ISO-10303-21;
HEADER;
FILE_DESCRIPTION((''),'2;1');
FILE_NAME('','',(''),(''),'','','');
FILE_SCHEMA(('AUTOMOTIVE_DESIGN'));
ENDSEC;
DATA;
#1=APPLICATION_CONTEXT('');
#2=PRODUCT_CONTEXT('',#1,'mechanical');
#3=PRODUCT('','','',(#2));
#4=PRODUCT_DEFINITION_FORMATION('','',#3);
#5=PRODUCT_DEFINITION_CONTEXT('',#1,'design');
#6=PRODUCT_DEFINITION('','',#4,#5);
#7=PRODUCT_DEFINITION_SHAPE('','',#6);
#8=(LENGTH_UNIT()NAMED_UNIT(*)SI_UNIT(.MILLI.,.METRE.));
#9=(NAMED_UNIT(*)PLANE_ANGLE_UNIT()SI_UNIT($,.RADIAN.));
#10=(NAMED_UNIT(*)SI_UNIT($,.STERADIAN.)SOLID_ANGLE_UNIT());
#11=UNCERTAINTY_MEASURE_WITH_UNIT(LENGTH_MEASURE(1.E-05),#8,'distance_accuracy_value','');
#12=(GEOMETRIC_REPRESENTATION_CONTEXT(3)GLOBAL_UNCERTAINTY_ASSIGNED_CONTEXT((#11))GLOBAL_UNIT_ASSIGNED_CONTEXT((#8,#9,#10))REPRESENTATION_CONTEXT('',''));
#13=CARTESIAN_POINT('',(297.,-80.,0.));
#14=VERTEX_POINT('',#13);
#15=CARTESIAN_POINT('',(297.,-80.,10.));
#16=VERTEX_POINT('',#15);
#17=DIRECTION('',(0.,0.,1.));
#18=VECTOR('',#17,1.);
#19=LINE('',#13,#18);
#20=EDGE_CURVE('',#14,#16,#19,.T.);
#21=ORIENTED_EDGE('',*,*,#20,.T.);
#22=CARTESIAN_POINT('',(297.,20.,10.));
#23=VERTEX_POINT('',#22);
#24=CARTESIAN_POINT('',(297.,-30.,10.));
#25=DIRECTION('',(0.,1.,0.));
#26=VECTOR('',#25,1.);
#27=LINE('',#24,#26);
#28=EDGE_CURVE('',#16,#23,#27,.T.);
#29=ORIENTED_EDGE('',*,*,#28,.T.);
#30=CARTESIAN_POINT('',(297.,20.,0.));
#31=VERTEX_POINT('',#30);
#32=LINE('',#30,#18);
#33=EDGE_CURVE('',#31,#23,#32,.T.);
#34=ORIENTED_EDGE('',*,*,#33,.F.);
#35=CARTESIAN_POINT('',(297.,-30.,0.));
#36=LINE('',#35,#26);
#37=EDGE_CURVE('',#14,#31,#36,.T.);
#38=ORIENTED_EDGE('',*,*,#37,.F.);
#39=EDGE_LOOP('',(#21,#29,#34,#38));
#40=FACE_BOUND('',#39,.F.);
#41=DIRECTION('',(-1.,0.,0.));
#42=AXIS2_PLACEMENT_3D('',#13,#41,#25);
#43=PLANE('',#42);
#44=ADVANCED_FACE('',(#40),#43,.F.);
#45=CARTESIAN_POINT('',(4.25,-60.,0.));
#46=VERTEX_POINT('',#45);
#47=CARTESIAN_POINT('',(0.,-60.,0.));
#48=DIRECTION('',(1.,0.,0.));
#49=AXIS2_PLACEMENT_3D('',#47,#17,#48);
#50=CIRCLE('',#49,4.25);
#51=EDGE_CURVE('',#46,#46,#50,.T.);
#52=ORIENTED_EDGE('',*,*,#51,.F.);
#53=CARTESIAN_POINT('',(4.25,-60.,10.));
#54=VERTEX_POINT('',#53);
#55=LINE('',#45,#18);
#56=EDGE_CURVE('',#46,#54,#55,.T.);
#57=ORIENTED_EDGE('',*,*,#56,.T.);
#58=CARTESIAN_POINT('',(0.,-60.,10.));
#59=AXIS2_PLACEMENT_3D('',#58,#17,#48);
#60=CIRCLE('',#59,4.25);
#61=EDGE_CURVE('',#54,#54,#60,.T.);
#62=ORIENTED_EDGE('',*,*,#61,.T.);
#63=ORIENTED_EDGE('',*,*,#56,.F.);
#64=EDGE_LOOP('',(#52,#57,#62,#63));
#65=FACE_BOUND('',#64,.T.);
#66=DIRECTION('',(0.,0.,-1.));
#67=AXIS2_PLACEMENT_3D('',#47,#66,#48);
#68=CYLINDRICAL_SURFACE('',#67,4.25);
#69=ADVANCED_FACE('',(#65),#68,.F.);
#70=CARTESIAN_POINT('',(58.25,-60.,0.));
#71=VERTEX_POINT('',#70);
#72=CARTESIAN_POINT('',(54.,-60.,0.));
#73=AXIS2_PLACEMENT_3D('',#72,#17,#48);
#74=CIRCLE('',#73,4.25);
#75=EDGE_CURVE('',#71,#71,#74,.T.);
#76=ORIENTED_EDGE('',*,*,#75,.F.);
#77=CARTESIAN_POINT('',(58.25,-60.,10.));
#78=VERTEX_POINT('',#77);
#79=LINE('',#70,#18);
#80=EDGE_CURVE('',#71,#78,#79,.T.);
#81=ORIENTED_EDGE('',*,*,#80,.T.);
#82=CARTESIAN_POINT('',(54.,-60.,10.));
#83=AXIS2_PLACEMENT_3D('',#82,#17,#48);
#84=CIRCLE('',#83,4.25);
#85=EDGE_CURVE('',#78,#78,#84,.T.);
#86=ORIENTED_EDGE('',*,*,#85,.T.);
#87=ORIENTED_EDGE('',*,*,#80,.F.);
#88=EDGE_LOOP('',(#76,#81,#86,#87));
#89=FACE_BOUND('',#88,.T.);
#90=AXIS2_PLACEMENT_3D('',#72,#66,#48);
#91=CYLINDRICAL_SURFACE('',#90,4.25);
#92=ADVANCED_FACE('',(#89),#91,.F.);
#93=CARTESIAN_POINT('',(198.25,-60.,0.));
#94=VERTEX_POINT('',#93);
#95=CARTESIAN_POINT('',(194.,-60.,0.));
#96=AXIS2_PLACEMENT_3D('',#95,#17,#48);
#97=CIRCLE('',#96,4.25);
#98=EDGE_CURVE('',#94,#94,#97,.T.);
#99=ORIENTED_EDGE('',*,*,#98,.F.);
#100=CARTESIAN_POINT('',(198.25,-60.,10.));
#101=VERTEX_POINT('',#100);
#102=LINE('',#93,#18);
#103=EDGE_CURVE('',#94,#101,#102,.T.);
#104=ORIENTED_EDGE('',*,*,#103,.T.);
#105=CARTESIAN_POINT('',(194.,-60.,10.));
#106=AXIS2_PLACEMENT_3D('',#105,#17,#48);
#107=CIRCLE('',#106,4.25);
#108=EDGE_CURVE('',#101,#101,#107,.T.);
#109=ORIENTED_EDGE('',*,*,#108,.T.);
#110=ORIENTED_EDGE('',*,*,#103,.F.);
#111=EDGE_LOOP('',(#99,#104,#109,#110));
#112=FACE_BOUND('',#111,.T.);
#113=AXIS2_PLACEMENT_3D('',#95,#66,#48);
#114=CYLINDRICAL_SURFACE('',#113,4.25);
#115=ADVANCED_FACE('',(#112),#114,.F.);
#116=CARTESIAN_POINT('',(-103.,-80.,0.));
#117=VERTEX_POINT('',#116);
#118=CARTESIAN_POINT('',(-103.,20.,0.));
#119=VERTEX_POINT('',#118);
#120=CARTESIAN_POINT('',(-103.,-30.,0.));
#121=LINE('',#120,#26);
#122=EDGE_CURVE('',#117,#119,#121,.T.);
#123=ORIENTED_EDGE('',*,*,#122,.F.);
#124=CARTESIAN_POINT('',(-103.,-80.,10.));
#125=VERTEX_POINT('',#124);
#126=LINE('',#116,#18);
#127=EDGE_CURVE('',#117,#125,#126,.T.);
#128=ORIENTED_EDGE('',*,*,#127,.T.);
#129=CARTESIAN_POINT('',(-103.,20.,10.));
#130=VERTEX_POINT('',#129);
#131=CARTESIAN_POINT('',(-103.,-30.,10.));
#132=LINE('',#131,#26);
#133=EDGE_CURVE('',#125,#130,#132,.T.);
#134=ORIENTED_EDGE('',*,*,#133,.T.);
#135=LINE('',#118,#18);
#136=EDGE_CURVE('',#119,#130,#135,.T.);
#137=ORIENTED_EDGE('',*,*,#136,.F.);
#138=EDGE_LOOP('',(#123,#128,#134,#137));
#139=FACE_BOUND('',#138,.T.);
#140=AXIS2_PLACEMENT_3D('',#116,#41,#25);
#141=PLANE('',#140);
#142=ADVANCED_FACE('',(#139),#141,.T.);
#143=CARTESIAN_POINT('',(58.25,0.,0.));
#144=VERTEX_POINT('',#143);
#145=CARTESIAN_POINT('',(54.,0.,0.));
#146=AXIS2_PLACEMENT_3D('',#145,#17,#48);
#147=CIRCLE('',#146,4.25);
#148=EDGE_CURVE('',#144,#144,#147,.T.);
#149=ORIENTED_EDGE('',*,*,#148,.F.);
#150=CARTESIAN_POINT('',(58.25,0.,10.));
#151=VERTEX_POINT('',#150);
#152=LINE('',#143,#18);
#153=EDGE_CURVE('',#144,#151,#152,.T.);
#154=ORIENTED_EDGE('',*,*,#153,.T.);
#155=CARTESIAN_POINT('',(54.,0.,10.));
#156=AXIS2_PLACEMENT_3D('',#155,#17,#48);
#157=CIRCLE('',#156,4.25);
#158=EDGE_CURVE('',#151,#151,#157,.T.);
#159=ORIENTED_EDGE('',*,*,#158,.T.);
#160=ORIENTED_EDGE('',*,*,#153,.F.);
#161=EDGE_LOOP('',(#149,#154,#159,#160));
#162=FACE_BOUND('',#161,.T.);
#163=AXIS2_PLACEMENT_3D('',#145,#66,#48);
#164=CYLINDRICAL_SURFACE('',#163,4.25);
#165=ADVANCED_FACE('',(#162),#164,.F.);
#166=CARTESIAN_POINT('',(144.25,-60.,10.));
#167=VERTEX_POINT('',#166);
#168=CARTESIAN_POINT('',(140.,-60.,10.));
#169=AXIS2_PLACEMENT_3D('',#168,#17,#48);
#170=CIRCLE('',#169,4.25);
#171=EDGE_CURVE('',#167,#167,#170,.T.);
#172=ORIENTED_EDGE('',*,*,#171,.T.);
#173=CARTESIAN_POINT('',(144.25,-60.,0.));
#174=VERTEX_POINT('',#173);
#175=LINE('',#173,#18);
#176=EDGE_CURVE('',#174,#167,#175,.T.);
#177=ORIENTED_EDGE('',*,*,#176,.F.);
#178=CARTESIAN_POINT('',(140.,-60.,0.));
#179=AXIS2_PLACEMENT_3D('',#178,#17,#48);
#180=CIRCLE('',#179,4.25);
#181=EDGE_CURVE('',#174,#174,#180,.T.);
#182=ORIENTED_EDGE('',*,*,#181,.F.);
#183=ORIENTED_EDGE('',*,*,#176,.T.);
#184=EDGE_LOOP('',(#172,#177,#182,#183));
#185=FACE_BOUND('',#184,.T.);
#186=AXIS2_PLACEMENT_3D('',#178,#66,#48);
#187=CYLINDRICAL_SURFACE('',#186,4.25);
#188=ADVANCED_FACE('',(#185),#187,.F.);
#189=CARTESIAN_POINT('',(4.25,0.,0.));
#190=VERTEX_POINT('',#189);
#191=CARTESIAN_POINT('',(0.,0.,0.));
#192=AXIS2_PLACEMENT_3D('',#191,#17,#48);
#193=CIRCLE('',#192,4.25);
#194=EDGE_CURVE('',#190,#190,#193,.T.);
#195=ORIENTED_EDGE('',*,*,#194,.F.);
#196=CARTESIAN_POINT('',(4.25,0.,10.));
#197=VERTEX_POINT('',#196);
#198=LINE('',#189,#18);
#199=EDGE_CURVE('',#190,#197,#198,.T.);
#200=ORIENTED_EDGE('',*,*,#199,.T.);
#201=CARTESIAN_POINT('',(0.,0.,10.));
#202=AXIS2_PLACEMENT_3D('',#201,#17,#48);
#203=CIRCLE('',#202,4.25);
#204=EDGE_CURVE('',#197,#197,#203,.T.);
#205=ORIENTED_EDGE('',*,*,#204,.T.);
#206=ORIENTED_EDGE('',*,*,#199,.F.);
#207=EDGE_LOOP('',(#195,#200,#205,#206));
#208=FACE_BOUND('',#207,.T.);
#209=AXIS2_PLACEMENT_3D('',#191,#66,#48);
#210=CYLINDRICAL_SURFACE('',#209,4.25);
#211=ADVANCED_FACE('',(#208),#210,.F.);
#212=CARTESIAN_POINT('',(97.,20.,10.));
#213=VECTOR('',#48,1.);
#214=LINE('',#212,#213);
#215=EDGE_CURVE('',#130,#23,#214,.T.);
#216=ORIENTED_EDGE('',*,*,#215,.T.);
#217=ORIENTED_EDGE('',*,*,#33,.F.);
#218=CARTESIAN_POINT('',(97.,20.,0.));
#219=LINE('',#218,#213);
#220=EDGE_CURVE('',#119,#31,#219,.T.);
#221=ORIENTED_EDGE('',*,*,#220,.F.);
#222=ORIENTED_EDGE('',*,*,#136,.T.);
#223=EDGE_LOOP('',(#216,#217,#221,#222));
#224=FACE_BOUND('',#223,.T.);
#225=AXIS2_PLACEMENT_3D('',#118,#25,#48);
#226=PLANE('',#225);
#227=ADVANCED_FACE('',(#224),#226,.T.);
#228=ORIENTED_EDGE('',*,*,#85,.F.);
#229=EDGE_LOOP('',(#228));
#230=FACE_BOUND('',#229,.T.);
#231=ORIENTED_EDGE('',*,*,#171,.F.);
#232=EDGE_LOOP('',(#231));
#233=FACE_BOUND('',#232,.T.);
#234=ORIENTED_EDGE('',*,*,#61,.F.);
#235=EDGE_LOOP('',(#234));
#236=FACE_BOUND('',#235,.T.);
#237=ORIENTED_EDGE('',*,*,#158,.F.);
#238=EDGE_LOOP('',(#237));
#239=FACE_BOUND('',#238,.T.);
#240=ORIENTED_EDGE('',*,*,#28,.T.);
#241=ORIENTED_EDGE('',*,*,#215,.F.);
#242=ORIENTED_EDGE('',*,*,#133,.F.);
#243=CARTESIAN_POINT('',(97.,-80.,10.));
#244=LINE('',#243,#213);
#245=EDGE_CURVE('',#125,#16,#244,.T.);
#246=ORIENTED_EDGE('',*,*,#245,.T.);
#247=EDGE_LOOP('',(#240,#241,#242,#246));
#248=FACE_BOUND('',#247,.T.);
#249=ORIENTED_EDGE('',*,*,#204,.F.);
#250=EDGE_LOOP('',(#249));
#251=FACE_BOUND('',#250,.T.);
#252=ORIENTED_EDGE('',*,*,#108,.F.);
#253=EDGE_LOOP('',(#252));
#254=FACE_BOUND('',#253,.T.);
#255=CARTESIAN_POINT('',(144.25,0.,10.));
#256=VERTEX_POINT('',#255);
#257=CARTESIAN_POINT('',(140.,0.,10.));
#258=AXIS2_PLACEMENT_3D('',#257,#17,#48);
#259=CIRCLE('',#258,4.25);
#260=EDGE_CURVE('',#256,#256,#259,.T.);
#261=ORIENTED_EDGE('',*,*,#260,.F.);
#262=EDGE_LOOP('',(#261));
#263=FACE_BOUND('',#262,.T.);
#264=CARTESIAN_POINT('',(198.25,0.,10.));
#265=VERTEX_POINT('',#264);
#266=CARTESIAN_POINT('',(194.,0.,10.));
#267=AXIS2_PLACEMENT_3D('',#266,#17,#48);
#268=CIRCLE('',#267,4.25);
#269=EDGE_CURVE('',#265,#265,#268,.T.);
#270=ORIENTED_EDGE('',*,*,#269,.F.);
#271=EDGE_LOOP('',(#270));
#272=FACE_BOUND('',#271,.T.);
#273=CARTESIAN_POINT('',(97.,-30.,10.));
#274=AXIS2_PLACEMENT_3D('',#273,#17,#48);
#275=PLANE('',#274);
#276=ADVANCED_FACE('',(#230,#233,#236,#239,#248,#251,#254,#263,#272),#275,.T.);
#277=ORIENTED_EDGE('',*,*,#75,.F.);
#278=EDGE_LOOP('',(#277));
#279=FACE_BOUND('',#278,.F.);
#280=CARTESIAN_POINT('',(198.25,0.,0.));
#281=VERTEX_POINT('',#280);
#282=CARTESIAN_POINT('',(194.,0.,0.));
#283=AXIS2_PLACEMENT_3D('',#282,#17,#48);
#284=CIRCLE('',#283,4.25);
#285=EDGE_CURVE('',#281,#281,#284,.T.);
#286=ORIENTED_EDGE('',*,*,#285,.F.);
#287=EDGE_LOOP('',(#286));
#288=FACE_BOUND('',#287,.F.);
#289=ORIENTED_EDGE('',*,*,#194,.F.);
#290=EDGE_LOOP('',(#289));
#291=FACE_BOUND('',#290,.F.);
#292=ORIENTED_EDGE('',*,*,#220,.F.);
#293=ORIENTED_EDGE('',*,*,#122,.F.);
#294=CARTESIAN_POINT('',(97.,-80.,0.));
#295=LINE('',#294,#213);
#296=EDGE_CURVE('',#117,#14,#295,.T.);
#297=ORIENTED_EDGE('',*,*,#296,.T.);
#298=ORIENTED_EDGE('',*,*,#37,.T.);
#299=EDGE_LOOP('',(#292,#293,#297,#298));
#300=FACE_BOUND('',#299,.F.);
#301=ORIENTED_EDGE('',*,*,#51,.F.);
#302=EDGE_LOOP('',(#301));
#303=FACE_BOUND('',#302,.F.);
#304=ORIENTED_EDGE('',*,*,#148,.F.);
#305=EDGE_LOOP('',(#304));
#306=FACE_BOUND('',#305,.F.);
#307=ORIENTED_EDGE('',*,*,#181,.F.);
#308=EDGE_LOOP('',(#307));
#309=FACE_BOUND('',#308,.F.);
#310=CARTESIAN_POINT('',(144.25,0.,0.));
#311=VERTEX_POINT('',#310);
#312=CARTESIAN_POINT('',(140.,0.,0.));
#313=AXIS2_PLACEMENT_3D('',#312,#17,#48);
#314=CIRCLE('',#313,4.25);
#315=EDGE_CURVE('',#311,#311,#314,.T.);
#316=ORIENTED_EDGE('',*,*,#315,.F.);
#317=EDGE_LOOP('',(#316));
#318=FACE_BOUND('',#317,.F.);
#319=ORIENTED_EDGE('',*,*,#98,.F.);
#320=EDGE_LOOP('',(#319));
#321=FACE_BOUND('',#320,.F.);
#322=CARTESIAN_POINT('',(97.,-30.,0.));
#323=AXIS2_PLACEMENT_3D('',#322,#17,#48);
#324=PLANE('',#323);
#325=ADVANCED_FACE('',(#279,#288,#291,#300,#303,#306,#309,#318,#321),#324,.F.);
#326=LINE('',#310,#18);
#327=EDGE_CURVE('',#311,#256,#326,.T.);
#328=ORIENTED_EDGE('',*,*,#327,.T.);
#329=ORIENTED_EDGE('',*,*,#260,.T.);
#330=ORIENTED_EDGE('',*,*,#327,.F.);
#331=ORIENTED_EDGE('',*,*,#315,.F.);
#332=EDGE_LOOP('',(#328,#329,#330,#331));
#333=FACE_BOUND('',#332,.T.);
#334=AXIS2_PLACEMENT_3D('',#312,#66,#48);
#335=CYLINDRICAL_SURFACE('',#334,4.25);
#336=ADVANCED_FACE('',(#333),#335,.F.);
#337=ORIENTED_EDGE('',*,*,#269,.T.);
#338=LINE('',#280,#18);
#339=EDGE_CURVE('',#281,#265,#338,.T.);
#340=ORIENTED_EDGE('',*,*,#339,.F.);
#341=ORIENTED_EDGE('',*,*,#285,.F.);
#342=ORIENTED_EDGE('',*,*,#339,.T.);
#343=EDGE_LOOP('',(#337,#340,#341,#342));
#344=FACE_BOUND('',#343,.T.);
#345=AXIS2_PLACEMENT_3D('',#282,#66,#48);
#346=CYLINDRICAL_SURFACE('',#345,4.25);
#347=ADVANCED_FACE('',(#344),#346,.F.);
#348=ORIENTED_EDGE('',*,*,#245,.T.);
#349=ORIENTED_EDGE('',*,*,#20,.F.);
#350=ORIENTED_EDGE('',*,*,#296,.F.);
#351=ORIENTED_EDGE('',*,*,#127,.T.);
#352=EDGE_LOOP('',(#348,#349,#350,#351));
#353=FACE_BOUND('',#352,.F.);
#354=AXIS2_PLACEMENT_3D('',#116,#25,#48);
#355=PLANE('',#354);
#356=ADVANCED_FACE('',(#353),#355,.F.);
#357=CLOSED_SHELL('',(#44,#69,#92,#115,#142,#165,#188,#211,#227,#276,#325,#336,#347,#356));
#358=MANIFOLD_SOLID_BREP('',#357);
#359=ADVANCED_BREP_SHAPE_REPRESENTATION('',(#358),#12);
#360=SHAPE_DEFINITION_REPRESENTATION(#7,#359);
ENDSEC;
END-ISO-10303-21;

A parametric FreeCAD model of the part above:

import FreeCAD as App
import Part
import Sketcher
Q = App.Units.Quantity

doc = App.newDocument("Part")
params = doc.addObject("Spreadsheet::Sheet", "Params")
for row, (alias, value) in enumerate([
    ("sketch1_diameter", "8.5 mm"),
    ("sketch1_width", "400 mm"),
    ("sketch1_height", "100 mm"),
    ("pad1_length", "10 mm"),
], start=1):
    params.set(f"A{row}", alias)
    params.set(f"B{row}", "=" + value)
    params.setAlias(f"B{row}", alias)

body = doc.addObject("PartDesign::Body", "Body")

sketch1 = body.newObject("Sketcher::SketchObject", "Sketch")
sketch1.AttachmentSupport = (doc.getObject("XY_Plane"), [""])
sketch1.MapMode = "FlatFace"
sketch1.addGeometry([
    Part.LineSegment(App.Vector(-103, 20, 0), App.Vector(-103, -80, 0)),
    Part.LineSegment(App.Vector(-103, -80, 0), App.Vector(297, -80, 0)),
    Part.LineSegment(App.Vector(297, -80, 0), App.Vector(297, 20, 0)),
    Part.LineSegment(App.Vector(297, 20, 0), App.Vector(-103, 20, 0)),
    Part.Circle(App.Vector(0, -60, 0), App.Vector(0, 0, 1), 4.2),
    Part.Circle(App.Vector(54, -60, 0), App.Vector(0, 0, 1), 4.2),
    Part.Circle(App.Vector(140, -60, 0), App.Vector(0, 0, 1), 4.2),
    Part.Circle(App.Vector(194, -60, 0), App.Vector(0, 0, 1), 4.2),
    Part.Circle(App.Vector(0, 0, 0), App.Vector(0, 0, 1), 4.2),
    Part.Circle(App.Vector(54, 0, 0), App.Vector(0, 0, 1), 4.2),
    Part.Circle(App.Vector(140, 0, 0), App.Vector(0, 0, 1), 4.2),
    Part.Circle(App.Vector(194, 0, 0), App.Vector(0, 0, 1), 4.2),
], False)
sketch1.addConstraint([
    Sketcher.Constraint("Coincident", 0, 2, 1, 1),
    Sketcher.Constraint("Coincident", 1, 2, 2, 1),
    Sketcher.Constraint("Coincident", 2, 2, 3, 1),
    Sketcher.Constraint("Coincident", 3, 2, 0, 1),
    Sketcher.Constraint("Vertical", 0),
    Sketcher.Constraint("Horizontal", 1),
    Sketcher.Constraint("Vertical", 2),
    Sketcher.Constraint("Horizontal", 3),
    Sketcher.Constraint("Coincident", 8, 3, -1, 1),
    Sketcher.Constraint("Equal", 4, 5),
    Sketcher.Constraint("Equal", 5, 6),
    Sketcher.Constraint("Equal", 6, 7),
    Sketcher.Constraint("Equal", 7, 8),
    Sketcher.Constraint("Equal", 8, 9),
    Sketcher.Constraint("Equal", 9, 10),
    Sketcher.Constraint("Equal", 10, 11),
    Sketcher.Constraint("PointOnObject", 4, 3, -2),
    Sketcher.Constraint("PointOnObject", 9, 3, -1),
    Sketcher.Constraint("PointOnObject", 10, 3, -1),
    Sketcher.Constraint("PointOnObject", 11, 3, -1),
    Sketcher.Constraint("Horizontal", 4, 3, 5, 3),
    Sketcher.Constraint("Horizontal", 5, 3, 6, 3),
    Sketcher.Constraint("Horizontal", 6, 3, 7, 3),
    Sketcher.Constraint("Vertical", 5, 3, 9, 3),
    Sketcher.Constraint("Vertical", 6, 3, 10, 3),
    Sketcher.Constraint("Vertical", 7, 3, 11, 3),
    Sketcher.Constraint("Diameter", 4, Q("8.5 mm")),
    Sketcher.Constraint("DistanceX", 1, 1, 1, 2, Q("400 mm")),
    Sketcher.Constraint("DistanceY", 0, 2, 0, 1, Q("100 mm")),
    Sketcher.Constraint("DistanceY", 4, 3, -1, 1, Q("60 mm")),
    Sketcher.Constraint("DistanceX", -1, 1, 5, 3, Q("54 mm")),
    Sketcher.Constraint("DistanceX", -1, 1, 6, 3, Q("140 mm")),
    Sketcher.Constraint("DistanceX", -1, 1, 7, 3, Q("194 mm")),
    Sketcher.Constraint("DistanceX", 0, 2, -1, 1, Q("103 mm")),
    Sketcher.Constraint("DistanceY", 0, 2, -1, 1, Q("80 mm")),
])
sketch1.setExpression("Constraints[26]", "Params.sketch1_diameter")
sketch1.setExpression("Constraints[27]", "Params.sketch1_width")
sketch1.setExpression("Constraints[28]", "Params.sketch1_height")
pad1 = body.newObject("PartDesign::Pad", "Pad")
pad1.Profile = sketch1
pad1.setExpression("Length", "Params.pad1_length")

doc.recompute()
